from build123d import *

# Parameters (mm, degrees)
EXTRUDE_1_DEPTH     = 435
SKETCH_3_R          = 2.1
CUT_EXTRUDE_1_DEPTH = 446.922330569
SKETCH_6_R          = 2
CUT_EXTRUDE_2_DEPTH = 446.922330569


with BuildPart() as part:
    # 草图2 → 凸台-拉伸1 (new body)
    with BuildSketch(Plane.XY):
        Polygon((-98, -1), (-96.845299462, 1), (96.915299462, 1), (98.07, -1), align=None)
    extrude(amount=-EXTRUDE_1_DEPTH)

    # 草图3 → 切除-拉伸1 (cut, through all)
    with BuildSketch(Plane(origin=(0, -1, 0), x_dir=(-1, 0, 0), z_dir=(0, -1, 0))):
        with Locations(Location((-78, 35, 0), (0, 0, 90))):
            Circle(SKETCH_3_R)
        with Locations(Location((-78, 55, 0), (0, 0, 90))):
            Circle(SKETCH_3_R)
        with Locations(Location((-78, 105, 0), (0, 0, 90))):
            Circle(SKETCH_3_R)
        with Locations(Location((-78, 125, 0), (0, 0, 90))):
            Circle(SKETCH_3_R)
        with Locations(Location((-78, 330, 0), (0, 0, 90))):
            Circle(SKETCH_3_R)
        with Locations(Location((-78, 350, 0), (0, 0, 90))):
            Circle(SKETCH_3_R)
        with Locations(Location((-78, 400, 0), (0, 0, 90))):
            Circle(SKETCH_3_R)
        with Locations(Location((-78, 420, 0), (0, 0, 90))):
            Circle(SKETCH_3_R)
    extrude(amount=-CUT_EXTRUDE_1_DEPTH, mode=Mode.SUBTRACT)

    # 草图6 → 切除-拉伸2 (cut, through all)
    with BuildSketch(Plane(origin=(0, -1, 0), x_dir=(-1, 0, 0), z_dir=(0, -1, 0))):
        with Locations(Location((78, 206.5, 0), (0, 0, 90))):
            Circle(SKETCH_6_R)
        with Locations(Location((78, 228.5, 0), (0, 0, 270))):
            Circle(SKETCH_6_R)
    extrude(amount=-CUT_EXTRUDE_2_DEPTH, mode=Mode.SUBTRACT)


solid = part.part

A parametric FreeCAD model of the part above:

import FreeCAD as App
import Part
import Sketcher

V = App.Vector
Q = App.Units.Quantity


def add_polygon(sketch, points):
    """Adds a closed chain of lines whose ends are joined by coincident constraints."""
    first, n = sketch.GeometryCount, len(points)
    for a, b in zip(points, points[1:] + points[:1]):
        sketch.addGeometry(Part.LineSegment(App.Vector(*a, 0), App.Vector(*b, 0)), False)
    for i in range(n):
        sketch.addConstraint(Sketcher.Constraint("Coincident", first + i, 2, first + (i + 1) % n, 1))

doc = App.newDocument("Part")
params = doc.addObject("Spreadsheet::Sheet", "Params")
for row, (alias, value) in enumerate([
    ("sketch1_width", "196.07 mm"),
    ("pad1_length", "435 mm"),
    ("sketch2_diameter", "4.2 mm"),
    ("sketch3_diameter", "4 mm"),
], start=1):
    params.set(f"A{row}", alias)
    params.set(f"B{row}", "=" + value)
    params.setAlias(f"B{row}", alias)

body = doc.addObject("PartDesign::Body", "Body")

sketch1 = body.newObject("Sketcher::SketchObject", "Sketch")
sketch1.AttachmentSupport = (doc.getObject("XY_Plane"), [""])
sketch1.MapMode = "FlatFace"
add_polygon(sketch1, [(-96.845299, 1), (-98, -1), (98.07, -1), (96.915299, 1)])
sketch1.addConstraint(Sketcher.Constraint("Horizontal", 1))
sketch1.addConstraint(Sketcher.Constraint("Horizontal", 3))
sketch1.addConstraint(Sketcher.Constraint("Equal", 0, 2))
sketch1.addConstraint(Sketcher.Constraint("Angle", 0, Q("-120 deg")))
sketch1.addConstraint(Sketcher.Constraint("DistanceX", 0, 2, -1, 1, 98.0))
sketch1.addConstraint(Sketcher.Constraint("DistanceY", 0, 2, -1, 1, 1.0))
sketch1.addConstraint(Sketcher.Constraint("DistanceY", -1, 1, 2, 2, 1.0))
sketch1.addConstraint(Sketcher.Constraint("DistanceX", 1, 1, 1, 2, 196.07))
sketch1.setExpression("Constraints[11]", "Params.sketch1_width")
pad1 = body.newObject("PartDesign::Pad", "Pad")
pad1.Profile = sketch1
pad1.setExpression("Length", "Params.pad1_length")
pad1.Reversed = True

sketch2 = body.newObject("Sketcher::SketchObject", "Sketch001")
sketch2.AttachmentSupport = (doc.getObject("XZ_Plane"), [""])
sketch2.MapMode = "FlatFace"
sketch2.AttachmentOffset = App.Placement(V(0, 0, 1), App.Rotation())
sketch2.addGeometry(Part.Circle(V(78, -35, 0), V(0, 0, 1), 2.1), False)
sketch2.addGeometry(Part.Circle(V(78, -55, 0), V(0, 0, 1), 2.1), False)
sketch2.addGeometry(Part.Circle(V(78, -105, 0), V(0, 0, 1), 2.1), False)
sketch2.addGeometry(Part.Circle(V(78, -125, 0), V(0, 0, 1), 2.1), False)
sketch2.addGeometry(Part.Circle(V(78, -330, 0), V(0, 0, 1), 2.1), False)
sketch2.addGeometry(Part.Circle(V(78, -350, 0), V(0, 0, 1), 2.1), False)
sketch2.addGeometry(Part.Circle(V(78, -400, 0), V(0, 0, 1), 2.1), False)
sketch2.addGeometry(Part.Circle(V(78, -420, 0), V(0, 0, 1), 2.1), False)
sketch2.addConstraint(Sketcher.Constraint("Equal", 0, 1))
sketch2.addConstraint(Sketcher.Constraint("Equal", 1, 2))
sketch2.addConstraint(Sketcher.Constraint("Equal", 2, 3))
sketch2.addConstraint(Sketcher.Constraint("Equal", 3, 4))
sketch2.addConstraint(Sketcher.Constraint("Equal", 4, 5))
sketch2.addConstraint(Sketcher.Constraint("Equal", 5, 6))
sketch2.addConstraint(Sketcher.Constraint("Equal", 6, 7))
sketch2.addConstraint(Sketcher.Constraint("Vertical", 0, 3, 1, 3))
sketch2.addConstraint(Sketcher.Constraint("Vertical", 1, 3, 2, 3))
sketch2.addConstraint(Sketcher.Constraint("Vertical", 2, 3, 3, 3))
sketch2.addConstraint(Sketcher.Constraint("Vertical", 3, 3, 4, 3))
sketch2.addConstraint(Sketcher.Constraint("Vertical", 4, 3, 5, 3))
sketch2.addConstraint(Sketcher.Constraint("Vertical", 5, 3, 6, 3))
sketch2.addConstraint(Sketcher.Constraint("Vertical", 6, 3, 7, 3))
sketch2.addConstraint(Sketcher.Constraint("Diameter", 0, 4.2))
sketch2.addConstraint(Sketcher.Constraint("DistanceX", -1, 1, 0, 3, 78.0))
sketch2.addConstraint(Sketcher.Constraint("DistanceY", 0, 3, -1, 1, 35.0))
sketch2.addConstraint(Sketcher.Constraint("DistanceY", 1, 3, -1, 1, 55.0))
sketch2.addConstraint(Sketcher.Constraint("DistanceY", 2, 3, -1, 1, 105.0))
sketch2.addConstraint(Sketcher.Constraint("DistanceY", 3, 3, -1, 1, 125.0))
sketch2.addConstraint(Sketcher.Constraint("DistanceY", 4, 3, -1, 1, 330.0))
sketch2.addConstraint(Sketcher.Constraint("DistanceY", 5, 3, -1, 1, 350.0))
sketch2.addConstraint(Sketcher.Constraint("DistanceY", 6, 3, -1, 1, 400.0))
sketch2.addConstraint(Sketcher.Constraint("DistanceY", 7, 3, -1, 1, 420.0))
sketch2.setExpression("Constraints[14]", "Params.sketch2_diameter")
pocket1 = body.newObject("PartDesign::Pocket", "Pocket")
pocket1.Profile = sketch2
pocket1.Type = "ThroughAll"

sketch3 = body.newObject("Sketcher::SketchObject", "Sketch002")
sketch3.AttachmentSupport = (doc.getObject("XZ_Plane"), [""])
sketch3.MapMode = "FlatFace"
sketch3.AttachmentOffset = App.Placement(V(0, 0, 1), App.Rotation())
sketch3.addGeometry(Part.Circle(V(-78, -206.5, 0), V(0, 0, 1), 2), False)
sketch3.addGeometry(Part.Circle(V(-78, -228.5, 0), V(0, 0, 1), 2), False)
sketch3.addConstraint(Sketcher.Constraint("Equal", 0, 1))
sketch3.addConstraint(Sketcher.Constraint("Vertical", 0, 3, 1, 3))
sketch3.addConstraint(Sketcher.Constraint("Diameter", 0, 4.0))
sketch3.addConstraint(Sketcher.Constraint("DistanceX", 0, 3, -1, 1, 78.0))
sketch3.addConstraint(Sketcher.Constraint("DistanceY", 1, 3, 0, 3, 22.0))
sketch3.addConstraint(Sketcher.Constraint("DistanceY", 0, 3, -1, 1, 206.5))
sketch3.setExpression("Constraints[2]", "Params.sketch3_diameter")
pocket2 = body.newObject("PartDesign::Pocket", "Pocket001")
pocket2.Profile = sketch3
pocket2.Type = "ThroughAll"

doc.recompute()
